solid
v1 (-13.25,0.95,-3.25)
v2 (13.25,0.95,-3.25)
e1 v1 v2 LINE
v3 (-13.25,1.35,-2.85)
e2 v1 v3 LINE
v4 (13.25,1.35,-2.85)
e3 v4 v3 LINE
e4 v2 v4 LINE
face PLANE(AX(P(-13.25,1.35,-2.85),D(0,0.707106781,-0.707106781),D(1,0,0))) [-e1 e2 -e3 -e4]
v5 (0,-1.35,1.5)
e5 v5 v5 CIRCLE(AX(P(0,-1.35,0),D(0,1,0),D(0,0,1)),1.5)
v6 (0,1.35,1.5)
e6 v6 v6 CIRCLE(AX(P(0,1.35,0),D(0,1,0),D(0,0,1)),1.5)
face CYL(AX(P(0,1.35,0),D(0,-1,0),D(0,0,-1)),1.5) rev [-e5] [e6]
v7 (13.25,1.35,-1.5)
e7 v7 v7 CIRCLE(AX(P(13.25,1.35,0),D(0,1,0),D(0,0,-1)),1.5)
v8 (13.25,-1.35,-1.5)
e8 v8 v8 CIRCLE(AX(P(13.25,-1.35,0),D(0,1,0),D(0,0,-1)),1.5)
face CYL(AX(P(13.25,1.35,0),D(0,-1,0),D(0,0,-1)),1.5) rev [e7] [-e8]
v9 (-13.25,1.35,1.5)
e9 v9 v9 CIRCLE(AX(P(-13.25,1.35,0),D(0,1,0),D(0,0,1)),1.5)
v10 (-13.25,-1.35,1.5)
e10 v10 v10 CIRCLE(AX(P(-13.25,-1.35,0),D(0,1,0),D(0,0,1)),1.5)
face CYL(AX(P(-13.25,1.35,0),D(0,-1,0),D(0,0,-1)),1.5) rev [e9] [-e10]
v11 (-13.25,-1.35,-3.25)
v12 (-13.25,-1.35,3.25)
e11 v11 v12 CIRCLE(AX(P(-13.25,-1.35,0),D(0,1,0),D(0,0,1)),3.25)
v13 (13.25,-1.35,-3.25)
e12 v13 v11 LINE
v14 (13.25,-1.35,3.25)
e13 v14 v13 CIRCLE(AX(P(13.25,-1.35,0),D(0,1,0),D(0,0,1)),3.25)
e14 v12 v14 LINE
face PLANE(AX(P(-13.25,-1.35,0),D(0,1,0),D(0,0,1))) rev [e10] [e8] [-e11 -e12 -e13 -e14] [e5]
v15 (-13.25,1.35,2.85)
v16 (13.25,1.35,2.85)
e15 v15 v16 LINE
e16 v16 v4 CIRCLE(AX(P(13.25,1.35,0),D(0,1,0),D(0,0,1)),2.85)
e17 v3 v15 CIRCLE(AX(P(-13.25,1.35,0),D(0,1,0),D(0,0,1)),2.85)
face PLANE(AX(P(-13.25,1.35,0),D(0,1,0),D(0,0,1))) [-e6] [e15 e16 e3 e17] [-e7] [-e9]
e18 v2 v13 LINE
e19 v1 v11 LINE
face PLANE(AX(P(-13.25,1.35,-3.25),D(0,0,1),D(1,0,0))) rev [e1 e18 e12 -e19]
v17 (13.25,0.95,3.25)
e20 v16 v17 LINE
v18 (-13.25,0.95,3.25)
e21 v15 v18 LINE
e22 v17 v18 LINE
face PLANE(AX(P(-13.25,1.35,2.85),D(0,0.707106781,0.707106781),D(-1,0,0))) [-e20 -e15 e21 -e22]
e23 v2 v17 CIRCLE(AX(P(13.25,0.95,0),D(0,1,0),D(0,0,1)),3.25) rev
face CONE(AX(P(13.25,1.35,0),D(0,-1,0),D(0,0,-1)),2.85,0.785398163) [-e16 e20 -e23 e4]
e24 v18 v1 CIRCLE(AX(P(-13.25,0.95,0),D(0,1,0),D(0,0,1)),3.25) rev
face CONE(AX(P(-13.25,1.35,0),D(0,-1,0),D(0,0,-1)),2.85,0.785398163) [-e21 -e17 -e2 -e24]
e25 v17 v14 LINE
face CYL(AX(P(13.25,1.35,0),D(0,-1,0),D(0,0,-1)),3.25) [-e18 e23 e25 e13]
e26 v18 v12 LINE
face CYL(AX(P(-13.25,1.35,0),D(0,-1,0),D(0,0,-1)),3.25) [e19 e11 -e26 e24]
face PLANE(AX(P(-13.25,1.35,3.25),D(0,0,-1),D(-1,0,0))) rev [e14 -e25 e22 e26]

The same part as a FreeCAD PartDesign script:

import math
import FreeCAD as App
import Part
import Sketcher
from FreeCAD import Vector


def edges_at(feature, points):
    """Names of the edges that pass closest to the given points."""
    edges = feature.Shape.Edges
    near = lambda p: min(range(len(edges)), key=lambda i: edges[i].distToShape(Part.Vertex(*p))[0])
    return sorted({f"Edge{near(p) + 1}" for p in points})

doc = App.newDocument("Part")
body = doc.addObject("PartDesign::Body", "Body")

sketch1 = doc.addObject("Sketcher::SketchObject", "Sketch")
body.addObject(sketch1)
sketch1.AttachmentSupport = (doc.XZ_Plane, [""])
sketch1.MapMode = "FlatFace"
sketch1.addGeometry([
    Part.LineSegment(Vector(13.25, -3.25, 0), Vector(-13.25, -3.25, 0)),
    Part.ArcOfCircle(Part.Circle(Vector(-13.25, 0, 0), Vector(0, 0, 1), 3.25), math.radians(90), math.radians(270)),
    Part.LineSegment(Vector(-13.25, 3.25, 0), Vector(13.25, 3.25, 0)),
    Part.ArcOfCircle(Part.Circle(Vector(13.25, 0, 0), Vector(0, 0, 1), 3.25), math.radians(-90), math.radians(90)),
    Part.Circle(Vector(13.25, 0, 0), Vector(0, 0, 1), 1.5),
    Part.Circle(Vector(0, 0, 0), Vector(0, 0, 1), 1.5),
    Part.Circle(Vector(-13.25, 0, 0), Vector(0, 0, 1), 1.5),
], False)
sketch1.addConstraint([
    Sketcher.Constraint("Tangent", 0, 2, 1, 2),
    Sketcher.Constraint("Tangent", 1, 1, 2, 1),
    Sketcher.Constraint("Tangent", 2, 2, 3, 2),
    Sketcher.Constraint("Tangent", 3, 1, 0, 1),
    Sketcher.Constraint("Horizontal", 0),
    Sketcher.Constraint("Horizontal", 2),
    Sketcher.Constraint("Coincident", 5, 3, -1, 1),
    Sketcher.Constraint("Coincident", 4, 3, 3, 3),
    Sketcher.Constraint("Coincident", 6, 3, 1, 3),
    Sketcher.Constraint("Equal", 4, 5),
    Sketcher.Constraint("Equal", 5, 6),
    Sketcher.Constraint("Symmetric", 1, 3, 3, 3, -1, 1),
    Sketcher.Constraint("Diameter", 4, 3.0),
    Sketcher.Constraint("Radius", 1, 3.25),
    Sketcher.Constraint("DistanceX", 0, 2, 0, 1, 26.5),
])
pad1 = doc.addObject("PartDesign::Pad", "Pad")
body.addObject(pad1)
pad1.Profile = sketch1
pad1.Length = 2.7
pad1.Midplane = True
doc.recompute()

chamfer = doc.addObject("PartDesign::Chamfer", "Chamfer")
body.addObject(chamfer)
chamfer.Base = (pad1, edges_at(pad1, [
    (16.5, 1.35, 0),
    (0, 1.35, -3.25),
    (-16.5, 1.35, 0),
    (0, 1.35, 3.25),
]))
chamfer.Size = 0.4

doc.recompute()
